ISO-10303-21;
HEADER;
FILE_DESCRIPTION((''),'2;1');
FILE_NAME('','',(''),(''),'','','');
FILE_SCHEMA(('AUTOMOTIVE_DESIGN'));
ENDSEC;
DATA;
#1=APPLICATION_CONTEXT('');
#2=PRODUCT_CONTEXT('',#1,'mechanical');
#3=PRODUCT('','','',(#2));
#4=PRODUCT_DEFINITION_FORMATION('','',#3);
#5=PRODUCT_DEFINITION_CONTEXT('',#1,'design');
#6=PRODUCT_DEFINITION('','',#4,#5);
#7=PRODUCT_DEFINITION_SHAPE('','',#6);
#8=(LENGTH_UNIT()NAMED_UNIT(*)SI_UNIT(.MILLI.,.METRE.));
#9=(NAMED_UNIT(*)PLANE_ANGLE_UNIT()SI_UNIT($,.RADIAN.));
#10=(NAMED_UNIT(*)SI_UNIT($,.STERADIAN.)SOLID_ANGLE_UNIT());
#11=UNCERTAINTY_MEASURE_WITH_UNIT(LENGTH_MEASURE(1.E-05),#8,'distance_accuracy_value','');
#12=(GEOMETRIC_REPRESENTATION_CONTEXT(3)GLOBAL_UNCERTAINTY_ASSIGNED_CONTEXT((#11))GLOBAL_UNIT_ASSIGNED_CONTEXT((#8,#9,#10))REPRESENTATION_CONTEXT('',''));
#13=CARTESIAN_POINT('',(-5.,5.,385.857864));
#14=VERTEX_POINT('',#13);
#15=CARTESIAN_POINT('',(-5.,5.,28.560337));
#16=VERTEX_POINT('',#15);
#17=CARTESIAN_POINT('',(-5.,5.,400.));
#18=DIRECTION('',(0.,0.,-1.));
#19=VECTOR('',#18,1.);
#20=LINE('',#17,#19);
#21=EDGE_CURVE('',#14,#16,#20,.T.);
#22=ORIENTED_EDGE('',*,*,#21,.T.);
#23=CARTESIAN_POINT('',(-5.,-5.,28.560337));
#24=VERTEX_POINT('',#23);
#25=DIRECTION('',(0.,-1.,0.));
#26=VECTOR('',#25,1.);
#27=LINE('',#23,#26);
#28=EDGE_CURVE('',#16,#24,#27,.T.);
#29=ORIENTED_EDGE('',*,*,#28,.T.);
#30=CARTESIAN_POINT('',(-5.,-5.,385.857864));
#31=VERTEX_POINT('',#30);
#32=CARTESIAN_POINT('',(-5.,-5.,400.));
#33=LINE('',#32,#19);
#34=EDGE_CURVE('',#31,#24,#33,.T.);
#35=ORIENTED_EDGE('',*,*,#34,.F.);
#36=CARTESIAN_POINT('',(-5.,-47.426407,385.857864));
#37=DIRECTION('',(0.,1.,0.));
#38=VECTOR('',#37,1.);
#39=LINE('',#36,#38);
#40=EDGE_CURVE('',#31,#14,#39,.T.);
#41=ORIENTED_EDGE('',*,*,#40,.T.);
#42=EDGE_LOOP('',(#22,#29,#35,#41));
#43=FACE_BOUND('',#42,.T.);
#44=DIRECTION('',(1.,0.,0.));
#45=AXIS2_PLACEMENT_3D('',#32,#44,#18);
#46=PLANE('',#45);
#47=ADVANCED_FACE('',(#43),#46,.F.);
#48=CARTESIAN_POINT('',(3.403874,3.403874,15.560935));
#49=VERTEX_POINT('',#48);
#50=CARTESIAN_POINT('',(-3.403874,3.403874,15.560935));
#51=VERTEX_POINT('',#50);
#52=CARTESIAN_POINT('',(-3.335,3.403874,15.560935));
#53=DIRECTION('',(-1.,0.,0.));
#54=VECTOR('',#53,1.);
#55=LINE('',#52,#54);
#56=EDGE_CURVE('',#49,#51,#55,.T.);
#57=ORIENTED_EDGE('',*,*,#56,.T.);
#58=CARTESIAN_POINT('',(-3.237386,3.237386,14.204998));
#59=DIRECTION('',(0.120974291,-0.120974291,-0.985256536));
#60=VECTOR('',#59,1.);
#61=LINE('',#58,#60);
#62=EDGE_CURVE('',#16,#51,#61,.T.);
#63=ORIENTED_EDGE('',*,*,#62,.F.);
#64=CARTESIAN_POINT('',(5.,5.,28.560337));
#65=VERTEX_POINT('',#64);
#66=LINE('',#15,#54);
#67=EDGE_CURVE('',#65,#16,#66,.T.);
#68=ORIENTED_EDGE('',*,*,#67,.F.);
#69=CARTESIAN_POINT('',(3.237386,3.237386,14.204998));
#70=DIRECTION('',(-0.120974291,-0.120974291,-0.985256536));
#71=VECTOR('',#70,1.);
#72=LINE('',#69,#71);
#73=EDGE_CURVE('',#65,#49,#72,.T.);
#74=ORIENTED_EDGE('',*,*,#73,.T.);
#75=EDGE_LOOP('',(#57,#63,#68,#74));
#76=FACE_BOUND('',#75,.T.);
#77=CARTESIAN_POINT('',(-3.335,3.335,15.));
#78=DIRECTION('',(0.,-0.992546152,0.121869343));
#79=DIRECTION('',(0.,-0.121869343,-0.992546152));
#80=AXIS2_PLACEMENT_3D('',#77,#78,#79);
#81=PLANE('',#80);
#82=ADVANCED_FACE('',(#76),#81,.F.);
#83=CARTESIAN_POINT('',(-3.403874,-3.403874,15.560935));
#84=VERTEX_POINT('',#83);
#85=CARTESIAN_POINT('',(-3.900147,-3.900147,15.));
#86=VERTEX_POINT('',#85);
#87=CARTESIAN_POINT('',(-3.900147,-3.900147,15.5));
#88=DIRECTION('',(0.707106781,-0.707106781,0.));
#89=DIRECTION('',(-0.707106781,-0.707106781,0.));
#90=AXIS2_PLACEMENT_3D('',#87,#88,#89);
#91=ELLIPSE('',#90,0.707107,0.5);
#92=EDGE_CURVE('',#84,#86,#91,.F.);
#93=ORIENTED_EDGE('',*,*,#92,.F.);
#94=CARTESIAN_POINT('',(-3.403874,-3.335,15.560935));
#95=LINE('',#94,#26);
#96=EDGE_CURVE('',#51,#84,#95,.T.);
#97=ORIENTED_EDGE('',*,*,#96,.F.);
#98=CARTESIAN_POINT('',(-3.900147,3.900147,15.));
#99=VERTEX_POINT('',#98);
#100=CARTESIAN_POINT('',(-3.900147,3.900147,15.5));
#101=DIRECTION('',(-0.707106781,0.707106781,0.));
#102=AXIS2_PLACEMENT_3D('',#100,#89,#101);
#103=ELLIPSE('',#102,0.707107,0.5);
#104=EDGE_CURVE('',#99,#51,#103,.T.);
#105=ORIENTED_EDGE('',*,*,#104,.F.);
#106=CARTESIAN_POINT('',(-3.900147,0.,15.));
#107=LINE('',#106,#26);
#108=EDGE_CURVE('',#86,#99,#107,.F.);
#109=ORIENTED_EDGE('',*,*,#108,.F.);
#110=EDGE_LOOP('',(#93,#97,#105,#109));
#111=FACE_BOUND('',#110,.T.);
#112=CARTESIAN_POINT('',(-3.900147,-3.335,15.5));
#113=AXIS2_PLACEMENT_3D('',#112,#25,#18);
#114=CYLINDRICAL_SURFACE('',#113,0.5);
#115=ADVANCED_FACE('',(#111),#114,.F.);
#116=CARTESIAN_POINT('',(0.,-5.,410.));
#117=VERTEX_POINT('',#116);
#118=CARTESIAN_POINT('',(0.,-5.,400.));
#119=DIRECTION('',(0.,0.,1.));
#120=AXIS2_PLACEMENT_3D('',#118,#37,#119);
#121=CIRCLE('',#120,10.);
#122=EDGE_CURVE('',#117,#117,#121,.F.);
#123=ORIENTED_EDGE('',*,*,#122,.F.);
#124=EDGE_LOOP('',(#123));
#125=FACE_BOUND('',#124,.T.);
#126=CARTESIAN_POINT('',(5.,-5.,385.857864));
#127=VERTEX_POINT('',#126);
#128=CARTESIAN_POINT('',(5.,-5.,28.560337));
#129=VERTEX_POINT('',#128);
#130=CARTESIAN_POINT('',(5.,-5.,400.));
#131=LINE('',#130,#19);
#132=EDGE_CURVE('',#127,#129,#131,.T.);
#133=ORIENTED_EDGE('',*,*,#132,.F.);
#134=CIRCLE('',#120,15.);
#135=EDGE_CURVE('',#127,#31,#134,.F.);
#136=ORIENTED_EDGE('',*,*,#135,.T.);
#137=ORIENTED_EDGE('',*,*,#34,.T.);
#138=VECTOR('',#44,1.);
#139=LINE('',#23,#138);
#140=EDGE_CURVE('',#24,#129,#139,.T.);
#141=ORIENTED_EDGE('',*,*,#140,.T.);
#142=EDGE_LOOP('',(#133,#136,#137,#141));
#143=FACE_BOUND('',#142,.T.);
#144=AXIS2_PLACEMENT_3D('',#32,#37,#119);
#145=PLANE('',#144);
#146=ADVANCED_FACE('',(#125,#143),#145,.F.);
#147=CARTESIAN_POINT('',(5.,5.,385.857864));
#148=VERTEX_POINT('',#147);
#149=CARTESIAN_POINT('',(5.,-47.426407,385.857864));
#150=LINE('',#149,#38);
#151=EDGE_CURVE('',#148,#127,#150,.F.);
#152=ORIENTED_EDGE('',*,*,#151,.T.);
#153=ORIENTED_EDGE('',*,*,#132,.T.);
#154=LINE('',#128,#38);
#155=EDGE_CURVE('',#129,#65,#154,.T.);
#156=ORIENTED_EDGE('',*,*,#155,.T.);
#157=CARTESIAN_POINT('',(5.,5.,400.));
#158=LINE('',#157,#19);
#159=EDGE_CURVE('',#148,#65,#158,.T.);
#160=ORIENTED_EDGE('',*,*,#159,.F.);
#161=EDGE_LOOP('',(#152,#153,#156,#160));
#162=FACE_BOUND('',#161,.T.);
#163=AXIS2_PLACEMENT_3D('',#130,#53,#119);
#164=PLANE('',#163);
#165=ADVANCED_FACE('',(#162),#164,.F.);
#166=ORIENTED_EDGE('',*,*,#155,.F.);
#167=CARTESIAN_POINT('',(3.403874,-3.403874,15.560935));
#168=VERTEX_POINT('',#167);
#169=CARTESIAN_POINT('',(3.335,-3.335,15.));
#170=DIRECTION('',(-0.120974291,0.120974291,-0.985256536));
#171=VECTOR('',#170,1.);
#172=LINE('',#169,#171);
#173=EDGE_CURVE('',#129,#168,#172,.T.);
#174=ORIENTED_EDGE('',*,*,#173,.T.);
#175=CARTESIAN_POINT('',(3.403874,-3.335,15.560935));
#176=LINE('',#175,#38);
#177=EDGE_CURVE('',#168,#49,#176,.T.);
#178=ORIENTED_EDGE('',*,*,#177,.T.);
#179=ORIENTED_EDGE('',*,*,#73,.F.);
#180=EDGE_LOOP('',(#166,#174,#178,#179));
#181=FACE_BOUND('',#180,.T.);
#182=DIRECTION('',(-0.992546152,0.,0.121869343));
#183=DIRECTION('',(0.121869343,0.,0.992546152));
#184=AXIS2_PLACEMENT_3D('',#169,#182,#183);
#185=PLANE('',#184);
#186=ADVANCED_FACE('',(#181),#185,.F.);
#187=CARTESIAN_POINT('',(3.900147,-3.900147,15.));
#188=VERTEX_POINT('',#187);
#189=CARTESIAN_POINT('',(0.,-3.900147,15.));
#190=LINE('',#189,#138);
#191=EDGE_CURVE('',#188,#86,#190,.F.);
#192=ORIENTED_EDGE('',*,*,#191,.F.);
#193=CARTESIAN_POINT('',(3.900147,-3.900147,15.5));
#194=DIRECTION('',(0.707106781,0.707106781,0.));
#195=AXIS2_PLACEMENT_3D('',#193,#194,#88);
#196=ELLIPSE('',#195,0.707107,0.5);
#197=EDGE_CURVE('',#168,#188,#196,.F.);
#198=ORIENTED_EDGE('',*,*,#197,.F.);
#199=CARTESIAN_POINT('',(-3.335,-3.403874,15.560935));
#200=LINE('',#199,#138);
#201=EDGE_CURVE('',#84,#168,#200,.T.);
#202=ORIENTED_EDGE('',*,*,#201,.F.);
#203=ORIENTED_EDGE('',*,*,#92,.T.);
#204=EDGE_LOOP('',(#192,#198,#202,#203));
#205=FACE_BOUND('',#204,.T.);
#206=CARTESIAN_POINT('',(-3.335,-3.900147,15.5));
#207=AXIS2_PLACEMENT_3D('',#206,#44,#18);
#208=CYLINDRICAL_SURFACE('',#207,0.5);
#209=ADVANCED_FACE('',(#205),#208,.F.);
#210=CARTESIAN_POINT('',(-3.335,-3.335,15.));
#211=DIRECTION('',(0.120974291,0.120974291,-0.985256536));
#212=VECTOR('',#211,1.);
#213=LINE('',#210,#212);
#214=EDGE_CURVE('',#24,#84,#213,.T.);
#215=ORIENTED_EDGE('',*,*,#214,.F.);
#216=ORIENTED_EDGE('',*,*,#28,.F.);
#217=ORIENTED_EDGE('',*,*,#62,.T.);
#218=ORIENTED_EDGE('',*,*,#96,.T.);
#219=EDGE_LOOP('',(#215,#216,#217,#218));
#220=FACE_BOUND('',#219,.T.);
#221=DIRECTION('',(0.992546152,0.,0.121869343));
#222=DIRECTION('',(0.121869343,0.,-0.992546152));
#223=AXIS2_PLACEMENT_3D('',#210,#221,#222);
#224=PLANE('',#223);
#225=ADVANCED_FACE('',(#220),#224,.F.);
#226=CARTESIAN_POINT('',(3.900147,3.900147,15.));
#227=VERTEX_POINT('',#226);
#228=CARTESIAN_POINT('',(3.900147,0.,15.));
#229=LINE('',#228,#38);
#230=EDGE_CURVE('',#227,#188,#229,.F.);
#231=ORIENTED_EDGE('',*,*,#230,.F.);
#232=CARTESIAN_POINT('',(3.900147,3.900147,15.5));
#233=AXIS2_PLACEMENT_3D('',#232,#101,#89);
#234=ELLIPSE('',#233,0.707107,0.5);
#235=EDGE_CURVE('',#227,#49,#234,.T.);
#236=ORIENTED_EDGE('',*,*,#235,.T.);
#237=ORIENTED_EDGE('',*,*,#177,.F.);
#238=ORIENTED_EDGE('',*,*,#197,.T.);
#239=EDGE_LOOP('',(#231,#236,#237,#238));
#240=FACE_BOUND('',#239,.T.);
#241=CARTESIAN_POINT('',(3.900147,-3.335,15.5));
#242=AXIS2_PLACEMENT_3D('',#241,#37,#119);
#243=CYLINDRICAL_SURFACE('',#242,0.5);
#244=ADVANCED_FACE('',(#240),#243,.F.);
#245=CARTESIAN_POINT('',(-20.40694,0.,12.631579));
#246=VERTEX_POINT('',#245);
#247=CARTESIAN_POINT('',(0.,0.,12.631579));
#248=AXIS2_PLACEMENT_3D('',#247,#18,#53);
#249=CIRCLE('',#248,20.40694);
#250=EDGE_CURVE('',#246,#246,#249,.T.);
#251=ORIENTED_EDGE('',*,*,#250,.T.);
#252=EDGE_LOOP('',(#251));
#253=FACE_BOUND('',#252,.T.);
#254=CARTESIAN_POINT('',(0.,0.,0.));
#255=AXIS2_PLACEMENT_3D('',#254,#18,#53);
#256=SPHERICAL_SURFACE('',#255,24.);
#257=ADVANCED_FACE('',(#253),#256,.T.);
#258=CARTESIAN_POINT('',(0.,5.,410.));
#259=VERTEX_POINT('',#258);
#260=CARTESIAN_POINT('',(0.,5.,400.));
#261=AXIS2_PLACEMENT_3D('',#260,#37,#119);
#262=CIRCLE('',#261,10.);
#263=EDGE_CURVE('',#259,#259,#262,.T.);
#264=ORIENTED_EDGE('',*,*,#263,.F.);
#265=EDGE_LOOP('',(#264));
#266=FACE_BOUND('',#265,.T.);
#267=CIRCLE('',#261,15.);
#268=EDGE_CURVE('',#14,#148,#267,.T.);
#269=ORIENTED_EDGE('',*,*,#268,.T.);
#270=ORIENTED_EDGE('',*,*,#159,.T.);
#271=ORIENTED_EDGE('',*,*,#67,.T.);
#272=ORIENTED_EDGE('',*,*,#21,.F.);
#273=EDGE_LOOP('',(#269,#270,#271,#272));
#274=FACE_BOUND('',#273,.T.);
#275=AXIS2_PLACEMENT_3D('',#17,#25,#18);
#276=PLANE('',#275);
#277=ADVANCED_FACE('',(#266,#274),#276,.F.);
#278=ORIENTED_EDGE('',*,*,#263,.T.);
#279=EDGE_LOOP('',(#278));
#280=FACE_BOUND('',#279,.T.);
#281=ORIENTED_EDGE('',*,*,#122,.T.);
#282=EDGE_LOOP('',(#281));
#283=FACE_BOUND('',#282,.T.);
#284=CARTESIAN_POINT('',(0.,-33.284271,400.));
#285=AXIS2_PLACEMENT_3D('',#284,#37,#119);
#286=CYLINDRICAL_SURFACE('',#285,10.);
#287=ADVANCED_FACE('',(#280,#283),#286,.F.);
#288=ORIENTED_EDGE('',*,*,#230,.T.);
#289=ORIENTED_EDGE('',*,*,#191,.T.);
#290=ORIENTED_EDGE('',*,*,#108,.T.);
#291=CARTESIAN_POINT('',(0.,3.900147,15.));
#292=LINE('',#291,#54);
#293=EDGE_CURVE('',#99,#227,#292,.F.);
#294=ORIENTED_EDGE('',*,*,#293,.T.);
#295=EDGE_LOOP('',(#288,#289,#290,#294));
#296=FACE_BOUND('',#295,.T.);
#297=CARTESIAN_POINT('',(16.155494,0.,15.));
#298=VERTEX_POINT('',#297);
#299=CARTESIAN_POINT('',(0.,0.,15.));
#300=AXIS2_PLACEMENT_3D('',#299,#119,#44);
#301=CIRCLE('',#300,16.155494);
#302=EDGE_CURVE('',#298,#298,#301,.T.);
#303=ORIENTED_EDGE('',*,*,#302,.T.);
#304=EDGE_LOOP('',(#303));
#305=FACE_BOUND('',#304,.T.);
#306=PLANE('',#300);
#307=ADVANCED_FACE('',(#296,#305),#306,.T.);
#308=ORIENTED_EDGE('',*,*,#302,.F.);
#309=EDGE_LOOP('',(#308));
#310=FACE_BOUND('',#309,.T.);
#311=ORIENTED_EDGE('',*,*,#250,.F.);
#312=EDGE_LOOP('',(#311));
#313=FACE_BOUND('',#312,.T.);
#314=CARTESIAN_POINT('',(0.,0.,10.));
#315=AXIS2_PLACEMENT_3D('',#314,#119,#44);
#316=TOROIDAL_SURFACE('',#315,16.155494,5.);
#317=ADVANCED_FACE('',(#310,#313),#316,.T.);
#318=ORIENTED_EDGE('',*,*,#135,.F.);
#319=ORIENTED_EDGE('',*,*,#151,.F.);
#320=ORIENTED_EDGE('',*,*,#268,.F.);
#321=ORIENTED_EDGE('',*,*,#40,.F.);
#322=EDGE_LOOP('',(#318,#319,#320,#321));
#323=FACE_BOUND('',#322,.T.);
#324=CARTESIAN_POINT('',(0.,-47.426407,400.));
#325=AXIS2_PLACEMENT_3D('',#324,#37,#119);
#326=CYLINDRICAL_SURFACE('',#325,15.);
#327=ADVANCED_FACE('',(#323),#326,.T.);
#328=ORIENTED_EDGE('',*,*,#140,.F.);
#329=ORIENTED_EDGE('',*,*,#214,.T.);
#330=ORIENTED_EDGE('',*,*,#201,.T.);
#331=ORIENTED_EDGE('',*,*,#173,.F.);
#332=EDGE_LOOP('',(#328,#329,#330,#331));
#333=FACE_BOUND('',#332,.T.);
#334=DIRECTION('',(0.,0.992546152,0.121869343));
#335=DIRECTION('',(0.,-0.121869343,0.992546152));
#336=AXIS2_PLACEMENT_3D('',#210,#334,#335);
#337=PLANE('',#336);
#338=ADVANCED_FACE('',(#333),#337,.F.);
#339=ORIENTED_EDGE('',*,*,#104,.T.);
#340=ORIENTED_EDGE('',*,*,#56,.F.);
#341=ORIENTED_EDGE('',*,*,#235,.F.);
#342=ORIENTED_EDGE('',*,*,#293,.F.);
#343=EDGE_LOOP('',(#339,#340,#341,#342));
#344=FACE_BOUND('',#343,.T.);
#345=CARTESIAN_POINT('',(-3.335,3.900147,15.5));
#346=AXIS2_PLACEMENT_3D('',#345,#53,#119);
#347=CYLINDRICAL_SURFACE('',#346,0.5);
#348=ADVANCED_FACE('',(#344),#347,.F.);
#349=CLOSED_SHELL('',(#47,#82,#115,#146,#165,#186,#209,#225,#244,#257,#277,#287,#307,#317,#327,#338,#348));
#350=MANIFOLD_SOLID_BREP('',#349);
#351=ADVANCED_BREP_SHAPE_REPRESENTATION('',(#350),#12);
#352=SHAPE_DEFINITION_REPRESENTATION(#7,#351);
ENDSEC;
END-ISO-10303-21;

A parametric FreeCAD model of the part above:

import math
import FreeCAD as App
import Part
import Sketcher
from FreeCAD import Vector
Q = App.Units.Quantity


def edges_at(feature, points):
    """Names of the edges that pass closest to the given points."""
    edges = feature.Shape.Edges
    near = lambda p: min(range(len(edges)), key=lambda i: edges[i].distToShape(Part.Vertex(*p))[0])
    return sorted({f"Edge{near(p) + 1}" for p in points})


def add_polygon(sketch, points):
    """Adds a closed chain of lines whose ends are joined by coincident constraints."""
    first, n = sketch.GeometryCount, len(points)
    for a, b in zip(points, points[1:] + points[:1]):
        sketch.addGeometry(Part.LineSegment(App.Vector(*a, 0), App.Vector(*b, 0)), False)
    for i in range(n):
        sketch.addConstraint(Sketcher.Constraint("Coincident", first + i, 2, first + (i + 1) % n, 1))

doc = App.newDocument("Part")
body = doc.addObject("PartDesign::Body", "Body")

# Sketch on XY plane
sketch1 = body.newObject("Sketcher::SketchObject", "Sketch")
sketch1.AttachmentSupport = (doc.getObject("XY_Plane"), [""])
sketch1.MapMode = "FlatFace"
sketch1.addGeometry([
    Part.LineSegment(Vector(0, 24, 0), Vector(0, -24, 0)),
    Part.ArcOfCircle(Part.Circle(Vector(0, 0, 0), Vector(0, 0, 1), 24), math.radians(-90), math.radians(90)),
], False)
sketch1.addConstraint([
    Sketcher.Constraint("Coincident", 0, 1, 1, 2),
    Sketcher.Constraint("Coincident", 1, 1, 0, 2),
    Sketcher.Constraint("Vertical", 0),
    Sketcher.Constraint("Coincident", 1, 3, -1, 1),
    Sketcher.Constraint("PointOnObject", 0, 1, -2),
    Sketcher.Constraint("Radius", 1, Q("24 mm")),
])
revolution = body.newObject("PartDesign::Revolution", "Revolution")
revolution.Profile = sketch1
revolution.ReferenceAxis = (sketch1, ["V_Axis"])
revolution.Angle = 360

# Sketch on XY plane
sketch2 = body.newObject("Sketcher::SketchObject", "Sketch001")
sketch2.AttachmentSupport = (doc.getObject("XY_Plane"), [""])
sketch2.MapMode = "FlatFace"
add_polygon(sketch2, [(-5, 5), (-5, -5), (5, -5), (5, 5)])  # lines 0-3
sketch2.addConstraint([
    Sketcher.Constraint("Vertical", 0),
    Sketcher.Constraint("Horizontal", 1),
    Sketcher.Constraint("Vertical", 2),
    Sketcher.Constraint("Horizontal", 3),
    Sketcher.Constraint("Symmetric", 0, 2, 2, 2, -1, 1),
    Sketcher.Constraint("Equal", 3, 0),
    Sketcher.Constraint("DistanceX", 1, 1, 1, 2, Q("10 mm")),
])
pad1 = body.newObject("PartDesign::Pad", "Pad")
pad1.Profile = sketch2
pad1.Length = 400

# Sketch on XZ plane
sketch3 = body.newObject("Sketcher::SketchObject", "Sketch002")
sketch3.AttachmentSupport = (doc.getObject("XZ_Plane"), [""])
sketch3.MapMode = "FlatFace"
sketch3.AttachmentOffset = App.Placement(Vector(0, 0, -5), App.Rotation())
sketch3.addGeometry(Part.Circle(Vector(0, 400, 0), Vector(0, 0, 1), 15), False)
sketch3.addConstraint([
    Sketcher.Constraint("PointOnObject", 0, 3, -2),
    Sketcher.Constraint("Diameter", 0, Q("30 mm")),
    Sketcher.Constraint("DistanceY", -1, 1, 0, 3, Q("400 mm")),
])
pad2 = body.newObject("PartDesign::Pad", "Pad001")
pad2.Profile = sketch3
pad2.Length = 10

# Sketch on XZ plane
sketch4 = body.newObject("Sketcher::SketchObject", "Sketch003")
sketch4.AttachmentSupport = (doc.getObject("XZ_Plane"), [""])
sketch4.MapMode = "FlatFace"
sketch4.AttachmentOffset = App.Placement(Vector(0, 0, -5), App.Rotation())
sketch4.addGeometry(Part.Circle(Vector(0, 400, 0), Vector(0, 0, 1), 10), False)
sketch4.addConstraint([
    Sketcher.Constraint("PointOnObject", 0, 3, -2),
    Sketcher.Constraint("Diameter", 0, Q("20 mm")),
    Sketcher.Constraint("DistanceY", -1, 1, 0, 3, Q("400 mm")),
])
pocket1 = body.newObject("PartDesign::Pocket", "Pocket")
pocket1.Profile = sketch4
pocket1.Length = 10
pocket1.Reversed = True

# Sketch on XY plane
sketch5 = body.newObject("Sketcher::SketchObject", "Sketch004")
sketch5.AttachmentSupport = (doc.getObject("XY_Plane"), [""])
sketch5.MapMode = "FlatFace"
sketch5.AttachmentOffset = App.Placement(Vector(0, 0, 15), App.Rotation())
add_polygon(sketch5, [(-118.536, 118.536), (-118.536, -118.536), (118.536, -118.536), (118.536, 118.536)])  # lines 0-3
add_polygon(sketch5, [(3.335, -3.335), (-3.335, -3.335), (-3.335, 3.335), (3.335, 3.335)])  # lines 4-7
sketch5.addConstraint([
    Sketcher.Constraint("Vertical", 0),
    Sketcher.Constraint("Horizontal", 1),
    Sketcher.Constraint("Vertical", 2),
    Sketcher.Constraint("Horizontal", 3),
    Sketcher.Constraint("Horizontal", 4),
    Sketcher.Constraint("Vertical", 5),
    Sketcher.Constraint("Horizontal", 6),
    Sketcher.Constraint("Vertical", 7),
    Sketcher.Constraint("Symmetric", 0, 2, 2, 2, -1, 1),
    Sketcher.Constraint("Symmetric", 4, 2, 6, 2, -1, 1),
    Sketcher.Constraint("Equal", 3, 0),
    Sketcher.Constraint("Equal", 6, 5),
    Sketcher.Constraint("DistanceX", 4, 2, 4, 1, Q("6.67 mm")),
    Sketcher.Constraint("DistanceX", 1, 1, 1, 2, Q("237.072 mm")),
])
pocket2 = body.newObject("PartDesign::Pocket", "Pocket001")
pocket2.Profile = sketch5
pocket2.Length = 400
pocket2.Reversed = True
pocket2.TaperAngle = 7
doc.recompute()

fillet = body.newObject("PartDesign::Fillet", "Fillet")
fillet.Base = (pocket2, edges_at(pocket2, [
    (3.335, 0, 15),
    (0, 3.335, 15),
    (-3.335, 0, 15),
    (0, -3.335, 15),
]))
fillet.Radius = 0.5
doc.recompute()

fillet2 = body.newObject("PartDesign::Fillet", "Fillet001")
fillet2.Base = (fillet, edges_at(fillet, [(0, 18.735, 15)]))
fillet2.Radius = 5

doc.recompute()
